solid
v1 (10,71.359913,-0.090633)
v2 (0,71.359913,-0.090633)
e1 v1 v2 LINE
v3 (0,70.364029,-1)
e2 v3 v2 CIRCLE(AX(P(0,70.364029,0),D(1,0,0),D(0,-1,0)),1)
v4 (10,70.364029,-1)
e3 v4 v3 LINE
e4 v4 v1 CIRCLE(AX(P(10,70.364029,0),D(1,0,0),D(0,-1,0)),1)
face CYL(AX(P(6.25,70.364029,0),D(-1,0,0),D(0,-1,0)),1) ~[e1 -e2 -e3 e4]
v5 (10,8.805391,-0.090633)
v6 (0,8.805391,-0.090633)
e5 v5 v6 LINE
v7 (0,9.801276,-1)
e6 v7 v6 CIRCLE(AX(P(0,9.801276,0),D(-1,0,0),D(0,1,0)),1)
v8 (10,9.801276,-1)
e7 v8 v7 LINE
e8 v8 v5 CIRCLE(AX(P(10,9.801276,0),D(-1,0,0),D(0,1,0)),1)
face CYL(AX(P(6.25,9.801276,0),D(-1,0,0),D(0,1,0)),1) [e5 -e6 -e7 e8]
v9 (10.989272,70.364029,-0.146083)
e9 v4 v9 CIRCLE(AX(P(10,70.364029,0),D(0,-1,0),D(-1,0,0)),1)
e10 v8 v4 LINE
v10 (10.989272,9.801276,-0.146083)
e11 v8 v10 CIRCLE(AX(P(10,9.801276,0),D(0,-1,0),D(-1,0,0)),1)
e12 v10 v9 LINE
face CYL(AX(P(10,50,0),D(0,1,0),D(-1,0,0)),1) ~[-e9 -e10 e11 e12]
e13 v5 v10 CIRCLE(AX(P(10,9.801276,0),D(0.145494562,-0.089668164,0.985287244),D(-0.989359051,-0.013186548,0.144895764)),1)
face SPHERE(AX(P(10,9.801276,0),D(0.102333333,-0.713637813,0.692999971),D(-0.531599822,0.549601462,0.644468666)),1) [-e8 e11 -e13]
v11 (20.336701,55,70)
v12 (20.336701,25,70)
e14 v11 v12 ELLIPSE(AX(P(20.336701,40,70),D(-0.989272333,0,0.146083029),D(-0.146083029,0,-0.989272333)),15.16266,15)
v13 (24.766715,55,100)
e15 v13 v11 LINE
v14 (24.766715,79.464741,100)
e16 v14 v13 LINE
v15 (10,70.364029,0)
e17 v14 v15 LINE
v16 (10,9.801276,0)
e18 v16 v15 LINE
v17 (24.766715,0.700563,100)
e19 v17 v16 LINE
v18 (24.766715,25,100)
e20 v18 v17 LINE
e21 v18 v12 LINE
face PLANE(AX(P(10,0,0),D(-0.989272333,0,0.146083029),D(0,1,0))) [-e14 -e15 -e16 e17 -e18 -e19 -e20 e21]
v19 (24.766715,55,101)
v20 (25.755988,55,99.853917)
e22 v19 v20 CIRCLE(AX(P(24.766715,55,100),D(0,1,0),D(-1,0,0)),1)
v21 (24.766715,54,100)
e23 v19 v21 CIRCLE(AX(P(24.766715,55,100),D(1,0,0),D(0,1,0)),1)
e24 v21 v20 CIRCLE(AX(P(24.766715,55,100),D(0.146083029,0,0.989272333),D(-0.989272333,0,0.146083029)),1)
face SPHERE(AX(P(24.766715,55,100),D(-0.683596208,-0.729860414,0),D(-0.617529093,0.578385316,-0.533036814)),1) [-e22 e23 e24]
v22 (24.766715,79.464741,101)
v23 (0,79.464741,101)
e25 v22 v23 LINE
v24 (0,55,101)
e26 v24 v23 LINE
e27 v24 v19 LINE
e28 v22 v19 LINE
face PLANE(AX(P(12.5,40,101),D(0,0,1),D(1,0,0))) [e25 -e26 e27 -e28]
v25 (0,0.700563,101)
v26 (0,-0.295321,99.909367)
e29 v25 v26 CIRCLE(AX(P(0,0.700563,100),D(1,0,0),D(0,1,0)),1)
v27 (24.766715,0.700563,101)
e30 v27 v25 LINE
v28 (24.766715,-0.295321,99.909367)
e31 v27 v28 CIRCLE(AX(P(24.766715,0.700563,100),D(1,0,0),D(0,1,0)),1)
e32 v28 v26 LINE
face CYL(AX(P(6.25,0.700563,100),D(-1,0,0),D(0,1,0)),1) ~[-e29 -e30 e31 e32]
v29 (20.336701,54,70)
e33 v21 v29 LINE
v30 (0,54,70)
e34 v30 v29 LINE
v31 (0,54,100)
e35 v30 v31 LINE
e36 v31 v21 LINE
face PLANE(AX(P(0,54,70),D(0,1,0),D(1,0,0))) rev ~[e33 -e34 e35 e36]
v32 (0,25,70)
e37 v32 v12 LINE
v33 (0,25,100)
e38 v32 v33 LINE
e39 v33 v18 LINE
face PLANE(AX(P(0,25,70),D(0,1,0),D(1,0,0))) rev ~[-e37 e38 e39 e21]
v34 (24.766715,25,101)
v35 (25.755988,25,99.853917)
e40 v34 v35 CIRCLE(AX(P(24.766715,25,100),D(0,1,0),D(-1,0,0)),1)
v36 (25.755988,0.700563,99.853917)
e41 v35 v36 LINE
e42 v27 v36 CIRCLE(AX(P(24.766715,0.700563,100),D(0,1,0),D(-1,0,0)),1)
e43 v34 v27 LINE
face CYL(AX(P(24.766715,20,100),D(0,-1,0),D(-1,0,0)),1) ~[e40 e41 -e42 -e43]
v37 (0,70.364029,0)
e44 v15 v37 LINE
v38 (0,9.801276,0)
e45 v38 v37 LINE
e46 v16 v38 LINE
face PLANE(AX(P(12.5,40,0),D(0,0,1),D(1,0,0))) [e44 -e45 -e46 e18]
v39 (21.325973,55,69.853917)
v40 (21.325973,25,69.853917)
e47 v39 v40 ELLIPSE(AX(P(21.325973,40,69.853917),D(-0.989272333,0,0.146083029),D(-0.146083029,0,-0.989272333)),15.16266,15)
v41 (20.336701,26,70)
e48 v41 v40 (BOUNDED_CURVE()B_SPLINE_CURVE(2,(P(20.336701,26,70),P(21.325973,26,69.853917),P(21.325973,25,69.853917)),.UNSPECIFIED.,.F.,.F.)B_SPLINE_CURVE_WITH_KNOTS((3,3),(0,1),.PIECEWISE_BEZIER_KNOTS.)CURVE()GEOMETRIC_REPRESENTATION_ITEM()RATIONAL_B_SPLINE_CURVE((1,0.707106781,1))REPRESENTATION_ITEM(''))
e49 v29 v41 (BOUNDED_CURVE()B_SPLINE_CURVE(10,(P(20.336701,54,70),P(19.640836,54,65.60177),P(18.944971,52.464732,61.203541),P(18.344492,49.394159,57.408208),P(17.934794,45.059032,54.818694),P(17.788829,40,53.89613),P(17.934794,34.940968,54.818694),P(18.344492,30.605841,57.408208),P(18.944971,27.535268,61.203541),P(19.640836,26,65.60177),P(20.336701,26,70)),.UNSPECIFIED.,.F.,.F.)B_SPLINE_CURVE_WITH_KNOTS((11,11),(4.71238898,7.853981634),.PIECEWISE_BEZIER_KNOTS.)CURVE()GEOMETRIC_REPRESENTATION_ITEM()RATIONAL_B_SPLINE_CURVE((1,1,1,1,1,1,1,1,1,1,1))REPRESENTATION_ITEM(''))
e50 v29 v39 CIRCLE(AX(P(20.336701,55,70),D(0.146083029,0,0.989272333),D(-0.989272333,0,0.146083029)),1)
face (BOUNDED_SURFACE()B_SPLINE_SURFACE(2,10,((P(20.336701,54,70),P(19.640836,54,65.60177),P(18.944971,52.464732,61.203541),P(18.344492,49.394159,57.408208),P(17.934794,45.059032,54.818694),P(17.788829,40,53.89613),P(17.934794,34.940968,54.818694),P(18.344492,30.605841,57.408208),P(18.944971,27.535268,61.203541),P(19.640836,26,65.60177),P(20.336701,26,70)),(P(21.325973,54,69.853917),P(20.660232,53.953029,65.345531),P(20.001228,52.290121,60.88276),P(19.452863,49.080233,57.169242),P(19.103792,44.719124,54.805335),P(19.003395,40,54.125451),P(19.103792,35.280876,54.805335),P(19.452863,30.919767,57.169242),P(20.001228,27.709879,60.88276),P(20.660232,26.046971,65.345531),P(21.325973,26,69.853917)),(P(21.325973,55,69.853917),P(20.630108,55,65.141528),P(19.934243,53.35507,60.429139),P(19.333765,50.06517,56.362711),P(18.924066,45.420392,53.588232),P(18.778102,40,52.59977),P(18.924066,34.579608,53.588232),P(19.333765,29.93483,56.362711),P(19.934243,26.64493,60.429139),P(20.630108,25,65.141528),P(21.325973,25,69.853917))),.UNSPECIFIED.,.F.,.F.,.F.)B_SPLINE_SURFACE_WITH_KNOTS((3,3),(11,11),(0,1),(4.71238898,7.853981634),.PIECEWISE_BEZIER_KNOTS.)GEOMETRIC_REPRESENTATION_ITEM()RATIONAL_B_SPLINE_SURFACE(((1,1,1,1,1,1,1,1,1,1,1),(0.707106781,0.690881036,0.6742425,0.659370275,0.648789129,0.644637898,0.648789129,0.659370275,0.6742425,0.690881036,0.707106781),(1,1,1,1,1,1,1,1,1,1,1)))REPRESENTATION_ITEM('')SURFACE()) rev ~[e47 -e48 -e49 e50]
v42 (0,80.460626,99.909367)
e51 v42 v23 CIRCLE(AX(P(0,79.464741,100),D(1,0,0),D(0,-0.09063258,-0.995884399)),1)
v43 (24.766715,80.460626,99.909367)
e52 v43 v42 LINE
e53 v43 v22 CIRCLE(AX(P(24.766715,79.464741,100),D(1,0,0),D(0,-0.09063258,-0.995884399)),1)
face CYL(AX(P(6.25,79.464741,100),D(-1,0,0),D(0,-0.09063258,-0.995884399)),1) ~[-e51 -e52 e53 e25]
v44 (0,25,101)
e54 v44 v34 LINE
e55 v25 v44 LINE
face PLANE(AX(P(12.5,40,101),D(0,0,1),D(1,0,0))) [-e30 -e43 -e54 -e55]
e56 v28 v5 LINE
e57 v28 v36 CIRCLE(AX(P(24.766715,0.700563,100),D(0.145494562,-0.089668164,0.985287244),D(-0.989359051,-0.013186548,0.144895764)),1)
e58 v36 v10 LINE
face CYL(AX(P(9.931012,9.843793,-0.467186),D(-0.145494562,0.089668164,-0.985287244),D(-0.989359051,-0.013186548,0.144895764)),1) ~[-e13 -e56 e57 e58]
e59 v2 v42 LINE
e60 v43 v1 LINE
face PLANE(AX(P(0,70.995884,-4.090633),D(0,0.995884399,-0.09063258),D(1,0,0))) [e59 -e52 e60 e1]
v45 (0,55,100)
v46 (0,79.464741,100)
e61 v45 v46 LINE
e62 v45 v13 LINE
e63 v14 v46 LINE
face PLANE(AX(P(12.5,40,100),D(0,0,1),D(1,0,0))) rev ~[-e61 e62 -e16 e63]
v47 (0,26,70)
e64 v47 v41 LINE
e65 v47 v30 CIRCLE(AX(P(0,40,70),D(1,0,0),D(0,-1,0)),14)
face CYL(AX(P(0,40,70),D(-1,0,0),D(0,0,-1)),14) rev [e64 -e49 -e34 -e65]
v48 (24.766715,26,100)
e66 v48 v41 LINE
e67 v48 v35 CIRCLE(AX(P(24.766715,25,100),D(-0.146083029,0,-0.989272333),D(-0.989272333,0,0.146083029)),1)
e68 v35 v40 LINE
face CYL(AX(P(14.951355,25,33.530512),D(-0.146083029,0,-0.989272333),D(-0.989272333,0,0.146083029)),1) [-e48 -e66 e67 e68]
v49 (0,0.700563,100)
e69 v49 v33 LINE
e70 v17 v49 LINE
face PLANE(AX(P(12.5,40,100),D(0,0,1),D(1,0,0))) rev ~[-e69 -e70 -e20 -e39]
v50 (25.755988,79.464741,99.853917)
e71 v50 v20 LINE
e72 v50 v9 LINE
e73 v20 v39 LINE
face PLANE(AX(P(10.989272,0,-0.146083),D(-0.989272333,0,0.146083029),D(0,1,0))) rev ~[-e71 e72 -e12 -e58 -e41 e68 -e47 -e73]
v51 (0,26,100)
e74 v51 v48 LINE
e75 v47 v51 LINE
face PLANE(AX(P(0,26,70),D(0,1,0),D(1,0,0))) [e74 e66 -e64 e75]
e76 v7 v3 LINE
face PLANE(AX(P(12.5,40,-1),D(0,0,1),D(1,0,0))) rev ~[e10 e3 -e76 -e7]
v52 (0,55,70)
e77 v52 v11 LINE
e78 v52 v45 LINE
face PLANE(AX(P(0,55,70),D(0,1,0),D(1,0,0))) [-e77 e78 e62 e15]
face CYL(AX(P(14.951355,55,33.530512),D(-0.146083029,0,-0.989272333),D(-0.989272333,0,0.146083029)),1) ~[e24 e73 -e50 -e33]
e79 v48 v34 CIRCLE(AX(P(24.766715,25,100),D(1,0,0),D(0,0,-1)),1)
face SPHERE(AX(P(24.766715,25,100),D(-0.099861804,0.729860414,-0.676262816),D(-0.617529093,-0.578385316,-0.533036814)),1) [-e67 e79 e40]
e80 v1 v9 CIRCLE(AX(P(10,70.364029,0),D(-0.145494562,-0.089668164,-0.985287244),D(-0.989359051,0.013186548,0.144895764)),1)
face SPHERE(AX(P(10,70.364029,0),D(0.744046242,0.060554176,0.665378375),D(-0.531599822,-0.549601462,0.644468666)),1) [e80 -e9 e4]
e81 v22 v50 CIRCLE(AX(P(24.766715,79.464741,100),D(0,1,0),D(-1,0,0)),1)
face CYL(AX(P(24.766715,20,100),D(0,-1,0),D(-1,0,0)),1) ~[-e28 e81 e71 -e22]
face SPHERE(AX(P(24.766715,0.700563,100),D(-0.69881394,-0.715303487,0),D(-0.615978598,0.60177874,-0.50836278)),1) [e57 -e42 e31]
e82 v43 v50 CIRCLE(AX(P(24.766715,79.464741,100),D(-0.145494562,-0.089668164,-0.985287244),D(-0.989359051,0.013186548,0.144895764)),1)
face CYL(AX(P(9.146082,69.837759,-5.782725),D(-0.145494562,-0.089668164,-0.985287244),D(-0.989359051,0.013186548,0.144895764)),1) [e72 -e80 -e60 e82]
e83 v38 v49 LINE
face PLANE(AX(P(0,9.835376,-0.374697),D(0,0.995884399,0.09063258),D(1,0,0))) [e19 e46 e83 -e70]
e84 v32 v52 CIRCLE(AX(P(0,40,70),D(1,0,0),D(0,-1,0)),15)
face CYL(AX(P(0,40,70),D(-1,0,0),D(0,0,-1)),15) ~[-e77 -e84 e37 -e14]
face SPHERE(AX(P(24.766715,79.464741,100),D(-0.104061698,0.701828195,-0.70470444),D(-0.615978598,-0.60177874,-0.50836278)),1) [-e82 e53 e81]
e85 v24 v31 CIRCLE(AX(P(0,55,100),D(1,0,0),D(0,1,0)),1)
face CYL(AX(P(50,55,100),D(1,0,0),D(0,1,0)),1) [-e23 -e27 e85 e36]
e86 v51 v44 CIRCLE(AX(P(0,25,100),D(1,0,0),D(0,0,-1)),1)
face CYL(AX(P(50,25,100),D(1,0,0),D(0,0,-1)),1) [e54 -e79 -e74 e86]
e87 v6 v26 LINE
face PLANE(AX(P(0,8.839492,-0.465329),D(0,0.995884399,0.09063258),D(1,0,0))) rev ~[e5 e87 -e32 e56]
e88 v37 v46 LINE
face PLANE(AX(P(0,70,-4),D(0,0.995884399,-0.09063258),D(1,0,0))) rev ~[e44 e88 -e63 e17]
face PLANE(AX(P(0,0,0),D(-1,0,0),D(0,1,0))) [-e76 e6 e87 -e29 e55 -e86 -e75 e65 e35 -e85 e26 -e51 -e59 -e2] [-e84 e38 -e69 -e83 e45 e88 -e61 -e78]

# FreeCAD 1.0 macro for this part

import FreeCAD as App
import Part
import Sketcher

V = App.Vector


def faces_at(feature, points):
    """Names of the faces that lie closest to the given points."""
    faces = feature.Shape.Faces
    near = lambda p: min(range(len(faces)), key=lambda i: faces[i].distToShape(Part.Vertex(*p))[0])
    return sorted({f"Face{near(p) + 1}" for p in points})

doc = App.newDocument("Part")
body = doc.addObject("PartDesign::Body", "Body")

sketch1 = body.newObject("Sketcher::SketchObject", "Sketch")
sketch1.AttachmentSupport = (doc.getObject("XY_Plane"), [""])
sketch1.MapMode = "FlatFace"
sketch1.addGeometry(Part.Circle(V(0, 0, 0), V(0, 0, 1), 15), False)
sketch1.addConstraint([
    Sketcher.Constraint("Coincident", 0, 3, -1, 1),
    Sketcher.Constraint("Diameter", 0, 30.0),
])
pad1 = body.newObject("PartDesign::Pad", "Pad")
pad1.Profile = sketch1
pad1.Length = 100
body2 = doc.addObject("PartDesign::Body", "Body001")
doc.recompute()

body.Placement = App.Placement(V(0, 0, 0), App.Rotation(V(0, 1, 0), 90))
boolean = body2.newObject("PartDesign::Boolean", "Boolean")
boolean.Type = "Fuse"
boolean.addObjects([body])
body3 = doc.addObject("PartDesign::Body", "Body002")
doc.recompute()

body2.Placement = App.Placement(V(0, 40, 70), App.Rotation(V(0, 0, 1), 0))
boolean2 = body3.newObject("PartDesign::Boolean", "Boolean001")
boolean2.Type = "Fuse"
boolean2.addObjects([body2])
body4 = doc.addObject("PartDesign::Body", "Body003")

sketch2 = body4.newObject("Sketcher::SketchObject", "Sketch001")
sketch2.AttachmentSupport = (doc.getObject("XY_Plane003"), [""])
sketch2.MapMode = "FlatFace"
sketch2.AttachmentOffset = App.Placement(V(0, 0, 70), App.Rotation())
sketch2.addGeometry([
    Part.LineSegment(V(0, 55, 0), V(0, 25, 0)),
    Part.LineSegment(V(0, 25, 0), V(100, 25, 0)),
    Part.LineSegment(V(100, 25, 0), V(100, 55, 0)),
    Part.LineSegment(V(100, 55, 0), V(0, 55, 0)),
], False)
sketch2.addConstraint([
    Sketcher.Constraint("Coincident", 0, 2, 1, 1),
    Sketcher.Constraint("Coincident", 1, 2, 2, 1),
    Sketcher.Constraint("Coincident", 2, 2, 3, 1),
    Sketcher.Constraint("Coincident", 3, 2, 0, 1),
    Sketcher.Constraint("Vertical", 0),
    Sketcher.Constraint("Horizontal", 1),
    Sketcher.Constraint("Vertical", 2),
    Sketcher.Constraint("Horizontal", 3),
    Sketcher.Constraint("PointOnObject", 0, 2, -2),
    Sketcher.Constraint("DistanceX", 1, 1, 1, 2, 100.0),
    Sketcher.Constraint("DistanceY", 0, 2, 0, 1, 30.0),
    Sketcher.Constraint("DistanceY", -1, 1, 0, 2, 25.0),
])
pad2 = body4.newObject("PartDesign::Pad", "Pad001")
pad2.Profile = sketch2
pad2.Length = 30
doc.recompute()

boolean3 = body4.newObject("PartDesign::Boolean", "Boolean002")
boolean3.Type = "Fuse"
boolean3.addObjects([body3])
body5 = doc.addObject("PartDesign::Body", "Body004")

sketch3 = body5.newObject("Sketcher::SketchObject", "Sketch002")
sketch3.AttachmentSupport = (doc.getObject("XY_Plane004"), [""])
sketch3.MapMode = "FlatFace"
sketch3.addGeometry([
    Part.LineSegment(V(0, 40, 0), V(0, 0, 0)),
    Part.LineSegment(V(0, 0, 0), V(40, 0, 0)),
    Part.LineSegment(V(40, 0, 0), V(40, 40, 0)),
    Part.LineSegment(V(40, 40, 0), V(0, 40, 0)),
], False)
sketch3.addConstraint([
    Sketcher.Constraint("Coincident", 0, 2, 1, 1),
    Sketcher.Constraint("Coincident", 1, 2, 2, 1),
    Sketcher.Constraint("Coincident", 2, 2, 3, 1),
    Sketcher.Constraint("Coincident", 3, 2, 0, 1),
    Sketcher.Constraint("Vertical", 0),
    Sketcher.Constraint("Horizontal", 1),
    Sketcher.Constraint("Vertical", 2),
    Sketcher.Constraint("Horizontal", 3),
    Sketcher.Constraint("Coincident", 0, 2, -1, 1),
    Sketcher.Constraint("Equal", 3, 0),
    Sketcher.Constraint("DistanceX", 1, 1, 1, 2, 40.0),
])
pad3 = body5.newObject("PartDesign::Pad", "Pad002")
pad3.Profile = sketch3
pad3.Length = 120
body6 = doc.addObject("PartDesign::Body", "Body005")
doc.recompute()

body5.Placement = App.Placement(V(0, 0, 0), App.Rotation(V(1, 0, 0), 354.8))
boolean4 = body6.newObject("PartDesign::Boolean", "Boolean003")
boolean4.Type = "Fuse"
boolean4.addObjects([body5])
body7 = doc.addObject("PartDesign::Body", "Body006")
doc.recompute()

body6.Placement = App.Placement(V(0, 70, -4), App.Rotation(V(0, 0, 1), 0))
boolean5 = body7.newObject("PartDesign::Boolean", "Boolean004")
boolean5.Type = "Fuse"
boolean5.addObjects([body6])
body8 = doc.addObject("PartDesign::Body", "Body007")

sketch4 = body8.newObject("Sketcher::SketchObject", "Sketch003")
sketch4.AttachmentSupport = (doc.getObject("XY_Plane007"), [""])
sketch4.MapMode = "FlatFace"
sketch4.addGeometry([
    Part.LineSegment(V(0, 40, 0), V(0, 0, 0)),
    Part.LineSegment(V(0, 0, 0), V(40, 0, 0)),
    Part.LineSegment(V(40, 0, 0), V(40, 40, 0)),
    Part.LineSegment(V(40, 40, 0), V(0, 40, 0)),
], False)
sketch4.addConstraint([
    Sketcher.Constraint("Coincident", 0, 2, 1, 1),
    Sketcher.Constraint("Coincident", 1, 2, 2, 1),
    Sketcher.Constraint("Coincident", 2, 2, 3, 1),
    Sketcher.Constraint("Coincident", 3, 2, 0, 1),
    Sketcher.Constraint("Vertical", 0),
    Sketcher.Constraint("Horizontal", 1),
    Sketcher.Constraint("Vertical", 2),
    Sketcher.Constraint("Horizontal", 3),
    Sketcher.Constraint("Coincident", 0, 2, -1, 1),
    Sketcher.Constraint("Equal", 3, 0),
    Sketcher.Constraint("DistanceX", 1, 1, 1, 2, 40.0),
])
pad4 = body8.newObject("PartDesign::Pad", "Pad003")
pad4.Profile = sketch4
pad4.Length = 120
body9 = doc.addObject("PartDesign::Body", "Body008")
doc.recompute()

body8.Placement = App.Placement(V(0, 0, 0), App.Rotation(V(1, 0, 0), 5.2))
boolean6 = body9.newObject("PartDesign::Boolean", "Boolean005")
boolean6.Type = "Fuse"
boolean6.addObjects([body8])
body10 = doc.addObject("PartDesign::Body", "Body009")
doc.recompute()

body9.Placement = App.Placement(V(0, -30, -4), App.Rotation(V(0, 0, 1), 0))
boolean7 = body10.newObject("PartDesign::Boolean", "Boolean006")
boolean7.Type = "Fuse"
boolean7.addObjects([body9])
body11 = doc.addObject("PartDesign::Body", "Body010")

sketch5 = body11.newObject("Sketcher::SketchObject", "Sketch004")
sketch5.AttachmentSupport = (doc.getObject("XY_Plane010"), [""])
sketch5.MapMode = "FlatFace"
sketch5.addGeometry([
    Part.LineSegment(V(0, 100, 0), V(0, 0, 0)),
    Part.LineSegment(V(0, 0, 0), V(19, 0, 0)),
    Part.LineSegment(V(19, 0, 0), V(19, 100, 0)),
    Part.LineSegment(V(19, 100, 0), V(0, 100, 0)),
], False)
sketch5.addConstraint([
    Sketcher.Constraint("Coincident", 0, 2, 1, 1),
    Sketcher.Constraint("Coincident", 1, 2, 2, 1),
    Sketcher.Constraint("Coincident", 2, 2, 3, 1),
    Sketcher.Constraint("Coincident", 3, 2, 0, 1),
    Sketcher.Constraint("Vertical", 0),
    Sketcher.Constraint("Horizontal", 1),
    Sketcher.Constraint("Vertical", 2),
    Sketcher.Constraint("Horizontal", 3),
    Sketcher.Constraint("Coincident", 0, 2, -1, 1),
    Sketcher.Constraint("DistanceX", 1, 1, 1, 2, 19.0),
    Sketcher.Constraint("DistanceY", 0, 2, 0, 1, 100.0),
])
pad5 = body11.newObject("PartDesign::Pad", "Pad004")
pad5.Profile = sketch5
pad5.Length = 110
body12 = doc.addObject("PartDesign::Body", "Body011")
doc.recompute()

body11.Placement = App.Placement(V(0, 0, 0), App.Rotation(V(0, 1, 0), 8.4))
boolean8 = body12.newObject("PartDesign::Boolean", "Boolean007")
boolean8.Type = "Fuse"
boolean8.addObjects([body11])
body13 = doc.addObject("PartDesign::Body", "Body012")
doc.recompute()

body12.Placement = App.Placement(V(10, 0, 0), App.Rotation(V(0, 0, 1), 0))
boolean9 = body13.newObject("PartDesign::Boolean", "Boolean008")
boolean9.Type = "Fuse"
boolean9.addObjects([body12])
body14 = doc.addObject("PartDesign::Body", "Body013")

sketch6 = body14.newObject("Sketcher::SketchObject", "Sketch005")
sketch6.AttachmentSupport = (doc.getObject("XY_Plane013"), [""])
sketch6.MapMode = "FlatFace"
sketch6.addGeometry([
    Part.LineSegment(V(0, 80, 0), V(0, 0, 0)),
    Part.LineSegment(V(0, 0, 0), V(25, 0, 0)),
    Part.LineSegment(V(25, 0, 0), V(25, 80, 0)),
    Part.LineSegment(V(25, 80, 0), V(0, 80, 0)),
], False)
sketch6.addConstraint([
    Sketcher.Constraint("Coincident", 0, 2, 1, 1),
    Sketcher.Constraint("Coincident", 1, 2, 2, 1),
    Sketcher.Constraint("Coincident", 2, 2, 3, 1),
    Sketcher.Constraint("Coincident", 3, 2, 0, 1),
    Sketcher.Constraint("Vertical", 0),
    Sketcher.Constraint("Horizontal", 1),
    Sketcher.Constraint("Vertical", 2),
    Sketcher.Constraint("Horizontal", 3),
    Sketcher.Constraint("Coincident", 0, 2, -1, 1),
    Sketcher.Constraint("DistanceX", 1, 1, 1, 2, 25.0),
    Sketcher.Constraint("DistanceY", 0, 2, 0, 1, 80.0),
])
pad6 = body14.newObject("PartDesign::Pad", "Pad005")
pad6.Profile = sketch6
pad6.Length = 100
doc.recompute()

boolean10 = body14.newObject("PartDesign::Boolean", "Boolean009")
boolean10.Type = "Cut"
boolean10.addObjects([body13])
doc.recompute()

boolean11 = body14.newObject("PartDesign::Boolean", "Boolean010")
boolean11.Type = "Cut"
boolean11.addObjects([body10])
doc.recompute()

boolean12 = body14.newObject("PartDesign::Boolean", "Boolean011")
boolean12.Type = "Cut"
boolean12.addObjects([body7])
doc.recompute()

boolean13 = body14.newObject("PartDesign::Boolean", "Boolean012")
boolean13.Type = "Cut"
boolean13.addObjects([body4])
doc.recompute()

thickness = body14.newObject("PartDesign::Thickness", "Thickness")
thickness.Base = (boolean13, faces_at(boolean13, [(0, 40.083, 50)]))
thickness.Value = 1
thickness.Reversed = False
thickness.Join = "Arc"

doc.recompute()
